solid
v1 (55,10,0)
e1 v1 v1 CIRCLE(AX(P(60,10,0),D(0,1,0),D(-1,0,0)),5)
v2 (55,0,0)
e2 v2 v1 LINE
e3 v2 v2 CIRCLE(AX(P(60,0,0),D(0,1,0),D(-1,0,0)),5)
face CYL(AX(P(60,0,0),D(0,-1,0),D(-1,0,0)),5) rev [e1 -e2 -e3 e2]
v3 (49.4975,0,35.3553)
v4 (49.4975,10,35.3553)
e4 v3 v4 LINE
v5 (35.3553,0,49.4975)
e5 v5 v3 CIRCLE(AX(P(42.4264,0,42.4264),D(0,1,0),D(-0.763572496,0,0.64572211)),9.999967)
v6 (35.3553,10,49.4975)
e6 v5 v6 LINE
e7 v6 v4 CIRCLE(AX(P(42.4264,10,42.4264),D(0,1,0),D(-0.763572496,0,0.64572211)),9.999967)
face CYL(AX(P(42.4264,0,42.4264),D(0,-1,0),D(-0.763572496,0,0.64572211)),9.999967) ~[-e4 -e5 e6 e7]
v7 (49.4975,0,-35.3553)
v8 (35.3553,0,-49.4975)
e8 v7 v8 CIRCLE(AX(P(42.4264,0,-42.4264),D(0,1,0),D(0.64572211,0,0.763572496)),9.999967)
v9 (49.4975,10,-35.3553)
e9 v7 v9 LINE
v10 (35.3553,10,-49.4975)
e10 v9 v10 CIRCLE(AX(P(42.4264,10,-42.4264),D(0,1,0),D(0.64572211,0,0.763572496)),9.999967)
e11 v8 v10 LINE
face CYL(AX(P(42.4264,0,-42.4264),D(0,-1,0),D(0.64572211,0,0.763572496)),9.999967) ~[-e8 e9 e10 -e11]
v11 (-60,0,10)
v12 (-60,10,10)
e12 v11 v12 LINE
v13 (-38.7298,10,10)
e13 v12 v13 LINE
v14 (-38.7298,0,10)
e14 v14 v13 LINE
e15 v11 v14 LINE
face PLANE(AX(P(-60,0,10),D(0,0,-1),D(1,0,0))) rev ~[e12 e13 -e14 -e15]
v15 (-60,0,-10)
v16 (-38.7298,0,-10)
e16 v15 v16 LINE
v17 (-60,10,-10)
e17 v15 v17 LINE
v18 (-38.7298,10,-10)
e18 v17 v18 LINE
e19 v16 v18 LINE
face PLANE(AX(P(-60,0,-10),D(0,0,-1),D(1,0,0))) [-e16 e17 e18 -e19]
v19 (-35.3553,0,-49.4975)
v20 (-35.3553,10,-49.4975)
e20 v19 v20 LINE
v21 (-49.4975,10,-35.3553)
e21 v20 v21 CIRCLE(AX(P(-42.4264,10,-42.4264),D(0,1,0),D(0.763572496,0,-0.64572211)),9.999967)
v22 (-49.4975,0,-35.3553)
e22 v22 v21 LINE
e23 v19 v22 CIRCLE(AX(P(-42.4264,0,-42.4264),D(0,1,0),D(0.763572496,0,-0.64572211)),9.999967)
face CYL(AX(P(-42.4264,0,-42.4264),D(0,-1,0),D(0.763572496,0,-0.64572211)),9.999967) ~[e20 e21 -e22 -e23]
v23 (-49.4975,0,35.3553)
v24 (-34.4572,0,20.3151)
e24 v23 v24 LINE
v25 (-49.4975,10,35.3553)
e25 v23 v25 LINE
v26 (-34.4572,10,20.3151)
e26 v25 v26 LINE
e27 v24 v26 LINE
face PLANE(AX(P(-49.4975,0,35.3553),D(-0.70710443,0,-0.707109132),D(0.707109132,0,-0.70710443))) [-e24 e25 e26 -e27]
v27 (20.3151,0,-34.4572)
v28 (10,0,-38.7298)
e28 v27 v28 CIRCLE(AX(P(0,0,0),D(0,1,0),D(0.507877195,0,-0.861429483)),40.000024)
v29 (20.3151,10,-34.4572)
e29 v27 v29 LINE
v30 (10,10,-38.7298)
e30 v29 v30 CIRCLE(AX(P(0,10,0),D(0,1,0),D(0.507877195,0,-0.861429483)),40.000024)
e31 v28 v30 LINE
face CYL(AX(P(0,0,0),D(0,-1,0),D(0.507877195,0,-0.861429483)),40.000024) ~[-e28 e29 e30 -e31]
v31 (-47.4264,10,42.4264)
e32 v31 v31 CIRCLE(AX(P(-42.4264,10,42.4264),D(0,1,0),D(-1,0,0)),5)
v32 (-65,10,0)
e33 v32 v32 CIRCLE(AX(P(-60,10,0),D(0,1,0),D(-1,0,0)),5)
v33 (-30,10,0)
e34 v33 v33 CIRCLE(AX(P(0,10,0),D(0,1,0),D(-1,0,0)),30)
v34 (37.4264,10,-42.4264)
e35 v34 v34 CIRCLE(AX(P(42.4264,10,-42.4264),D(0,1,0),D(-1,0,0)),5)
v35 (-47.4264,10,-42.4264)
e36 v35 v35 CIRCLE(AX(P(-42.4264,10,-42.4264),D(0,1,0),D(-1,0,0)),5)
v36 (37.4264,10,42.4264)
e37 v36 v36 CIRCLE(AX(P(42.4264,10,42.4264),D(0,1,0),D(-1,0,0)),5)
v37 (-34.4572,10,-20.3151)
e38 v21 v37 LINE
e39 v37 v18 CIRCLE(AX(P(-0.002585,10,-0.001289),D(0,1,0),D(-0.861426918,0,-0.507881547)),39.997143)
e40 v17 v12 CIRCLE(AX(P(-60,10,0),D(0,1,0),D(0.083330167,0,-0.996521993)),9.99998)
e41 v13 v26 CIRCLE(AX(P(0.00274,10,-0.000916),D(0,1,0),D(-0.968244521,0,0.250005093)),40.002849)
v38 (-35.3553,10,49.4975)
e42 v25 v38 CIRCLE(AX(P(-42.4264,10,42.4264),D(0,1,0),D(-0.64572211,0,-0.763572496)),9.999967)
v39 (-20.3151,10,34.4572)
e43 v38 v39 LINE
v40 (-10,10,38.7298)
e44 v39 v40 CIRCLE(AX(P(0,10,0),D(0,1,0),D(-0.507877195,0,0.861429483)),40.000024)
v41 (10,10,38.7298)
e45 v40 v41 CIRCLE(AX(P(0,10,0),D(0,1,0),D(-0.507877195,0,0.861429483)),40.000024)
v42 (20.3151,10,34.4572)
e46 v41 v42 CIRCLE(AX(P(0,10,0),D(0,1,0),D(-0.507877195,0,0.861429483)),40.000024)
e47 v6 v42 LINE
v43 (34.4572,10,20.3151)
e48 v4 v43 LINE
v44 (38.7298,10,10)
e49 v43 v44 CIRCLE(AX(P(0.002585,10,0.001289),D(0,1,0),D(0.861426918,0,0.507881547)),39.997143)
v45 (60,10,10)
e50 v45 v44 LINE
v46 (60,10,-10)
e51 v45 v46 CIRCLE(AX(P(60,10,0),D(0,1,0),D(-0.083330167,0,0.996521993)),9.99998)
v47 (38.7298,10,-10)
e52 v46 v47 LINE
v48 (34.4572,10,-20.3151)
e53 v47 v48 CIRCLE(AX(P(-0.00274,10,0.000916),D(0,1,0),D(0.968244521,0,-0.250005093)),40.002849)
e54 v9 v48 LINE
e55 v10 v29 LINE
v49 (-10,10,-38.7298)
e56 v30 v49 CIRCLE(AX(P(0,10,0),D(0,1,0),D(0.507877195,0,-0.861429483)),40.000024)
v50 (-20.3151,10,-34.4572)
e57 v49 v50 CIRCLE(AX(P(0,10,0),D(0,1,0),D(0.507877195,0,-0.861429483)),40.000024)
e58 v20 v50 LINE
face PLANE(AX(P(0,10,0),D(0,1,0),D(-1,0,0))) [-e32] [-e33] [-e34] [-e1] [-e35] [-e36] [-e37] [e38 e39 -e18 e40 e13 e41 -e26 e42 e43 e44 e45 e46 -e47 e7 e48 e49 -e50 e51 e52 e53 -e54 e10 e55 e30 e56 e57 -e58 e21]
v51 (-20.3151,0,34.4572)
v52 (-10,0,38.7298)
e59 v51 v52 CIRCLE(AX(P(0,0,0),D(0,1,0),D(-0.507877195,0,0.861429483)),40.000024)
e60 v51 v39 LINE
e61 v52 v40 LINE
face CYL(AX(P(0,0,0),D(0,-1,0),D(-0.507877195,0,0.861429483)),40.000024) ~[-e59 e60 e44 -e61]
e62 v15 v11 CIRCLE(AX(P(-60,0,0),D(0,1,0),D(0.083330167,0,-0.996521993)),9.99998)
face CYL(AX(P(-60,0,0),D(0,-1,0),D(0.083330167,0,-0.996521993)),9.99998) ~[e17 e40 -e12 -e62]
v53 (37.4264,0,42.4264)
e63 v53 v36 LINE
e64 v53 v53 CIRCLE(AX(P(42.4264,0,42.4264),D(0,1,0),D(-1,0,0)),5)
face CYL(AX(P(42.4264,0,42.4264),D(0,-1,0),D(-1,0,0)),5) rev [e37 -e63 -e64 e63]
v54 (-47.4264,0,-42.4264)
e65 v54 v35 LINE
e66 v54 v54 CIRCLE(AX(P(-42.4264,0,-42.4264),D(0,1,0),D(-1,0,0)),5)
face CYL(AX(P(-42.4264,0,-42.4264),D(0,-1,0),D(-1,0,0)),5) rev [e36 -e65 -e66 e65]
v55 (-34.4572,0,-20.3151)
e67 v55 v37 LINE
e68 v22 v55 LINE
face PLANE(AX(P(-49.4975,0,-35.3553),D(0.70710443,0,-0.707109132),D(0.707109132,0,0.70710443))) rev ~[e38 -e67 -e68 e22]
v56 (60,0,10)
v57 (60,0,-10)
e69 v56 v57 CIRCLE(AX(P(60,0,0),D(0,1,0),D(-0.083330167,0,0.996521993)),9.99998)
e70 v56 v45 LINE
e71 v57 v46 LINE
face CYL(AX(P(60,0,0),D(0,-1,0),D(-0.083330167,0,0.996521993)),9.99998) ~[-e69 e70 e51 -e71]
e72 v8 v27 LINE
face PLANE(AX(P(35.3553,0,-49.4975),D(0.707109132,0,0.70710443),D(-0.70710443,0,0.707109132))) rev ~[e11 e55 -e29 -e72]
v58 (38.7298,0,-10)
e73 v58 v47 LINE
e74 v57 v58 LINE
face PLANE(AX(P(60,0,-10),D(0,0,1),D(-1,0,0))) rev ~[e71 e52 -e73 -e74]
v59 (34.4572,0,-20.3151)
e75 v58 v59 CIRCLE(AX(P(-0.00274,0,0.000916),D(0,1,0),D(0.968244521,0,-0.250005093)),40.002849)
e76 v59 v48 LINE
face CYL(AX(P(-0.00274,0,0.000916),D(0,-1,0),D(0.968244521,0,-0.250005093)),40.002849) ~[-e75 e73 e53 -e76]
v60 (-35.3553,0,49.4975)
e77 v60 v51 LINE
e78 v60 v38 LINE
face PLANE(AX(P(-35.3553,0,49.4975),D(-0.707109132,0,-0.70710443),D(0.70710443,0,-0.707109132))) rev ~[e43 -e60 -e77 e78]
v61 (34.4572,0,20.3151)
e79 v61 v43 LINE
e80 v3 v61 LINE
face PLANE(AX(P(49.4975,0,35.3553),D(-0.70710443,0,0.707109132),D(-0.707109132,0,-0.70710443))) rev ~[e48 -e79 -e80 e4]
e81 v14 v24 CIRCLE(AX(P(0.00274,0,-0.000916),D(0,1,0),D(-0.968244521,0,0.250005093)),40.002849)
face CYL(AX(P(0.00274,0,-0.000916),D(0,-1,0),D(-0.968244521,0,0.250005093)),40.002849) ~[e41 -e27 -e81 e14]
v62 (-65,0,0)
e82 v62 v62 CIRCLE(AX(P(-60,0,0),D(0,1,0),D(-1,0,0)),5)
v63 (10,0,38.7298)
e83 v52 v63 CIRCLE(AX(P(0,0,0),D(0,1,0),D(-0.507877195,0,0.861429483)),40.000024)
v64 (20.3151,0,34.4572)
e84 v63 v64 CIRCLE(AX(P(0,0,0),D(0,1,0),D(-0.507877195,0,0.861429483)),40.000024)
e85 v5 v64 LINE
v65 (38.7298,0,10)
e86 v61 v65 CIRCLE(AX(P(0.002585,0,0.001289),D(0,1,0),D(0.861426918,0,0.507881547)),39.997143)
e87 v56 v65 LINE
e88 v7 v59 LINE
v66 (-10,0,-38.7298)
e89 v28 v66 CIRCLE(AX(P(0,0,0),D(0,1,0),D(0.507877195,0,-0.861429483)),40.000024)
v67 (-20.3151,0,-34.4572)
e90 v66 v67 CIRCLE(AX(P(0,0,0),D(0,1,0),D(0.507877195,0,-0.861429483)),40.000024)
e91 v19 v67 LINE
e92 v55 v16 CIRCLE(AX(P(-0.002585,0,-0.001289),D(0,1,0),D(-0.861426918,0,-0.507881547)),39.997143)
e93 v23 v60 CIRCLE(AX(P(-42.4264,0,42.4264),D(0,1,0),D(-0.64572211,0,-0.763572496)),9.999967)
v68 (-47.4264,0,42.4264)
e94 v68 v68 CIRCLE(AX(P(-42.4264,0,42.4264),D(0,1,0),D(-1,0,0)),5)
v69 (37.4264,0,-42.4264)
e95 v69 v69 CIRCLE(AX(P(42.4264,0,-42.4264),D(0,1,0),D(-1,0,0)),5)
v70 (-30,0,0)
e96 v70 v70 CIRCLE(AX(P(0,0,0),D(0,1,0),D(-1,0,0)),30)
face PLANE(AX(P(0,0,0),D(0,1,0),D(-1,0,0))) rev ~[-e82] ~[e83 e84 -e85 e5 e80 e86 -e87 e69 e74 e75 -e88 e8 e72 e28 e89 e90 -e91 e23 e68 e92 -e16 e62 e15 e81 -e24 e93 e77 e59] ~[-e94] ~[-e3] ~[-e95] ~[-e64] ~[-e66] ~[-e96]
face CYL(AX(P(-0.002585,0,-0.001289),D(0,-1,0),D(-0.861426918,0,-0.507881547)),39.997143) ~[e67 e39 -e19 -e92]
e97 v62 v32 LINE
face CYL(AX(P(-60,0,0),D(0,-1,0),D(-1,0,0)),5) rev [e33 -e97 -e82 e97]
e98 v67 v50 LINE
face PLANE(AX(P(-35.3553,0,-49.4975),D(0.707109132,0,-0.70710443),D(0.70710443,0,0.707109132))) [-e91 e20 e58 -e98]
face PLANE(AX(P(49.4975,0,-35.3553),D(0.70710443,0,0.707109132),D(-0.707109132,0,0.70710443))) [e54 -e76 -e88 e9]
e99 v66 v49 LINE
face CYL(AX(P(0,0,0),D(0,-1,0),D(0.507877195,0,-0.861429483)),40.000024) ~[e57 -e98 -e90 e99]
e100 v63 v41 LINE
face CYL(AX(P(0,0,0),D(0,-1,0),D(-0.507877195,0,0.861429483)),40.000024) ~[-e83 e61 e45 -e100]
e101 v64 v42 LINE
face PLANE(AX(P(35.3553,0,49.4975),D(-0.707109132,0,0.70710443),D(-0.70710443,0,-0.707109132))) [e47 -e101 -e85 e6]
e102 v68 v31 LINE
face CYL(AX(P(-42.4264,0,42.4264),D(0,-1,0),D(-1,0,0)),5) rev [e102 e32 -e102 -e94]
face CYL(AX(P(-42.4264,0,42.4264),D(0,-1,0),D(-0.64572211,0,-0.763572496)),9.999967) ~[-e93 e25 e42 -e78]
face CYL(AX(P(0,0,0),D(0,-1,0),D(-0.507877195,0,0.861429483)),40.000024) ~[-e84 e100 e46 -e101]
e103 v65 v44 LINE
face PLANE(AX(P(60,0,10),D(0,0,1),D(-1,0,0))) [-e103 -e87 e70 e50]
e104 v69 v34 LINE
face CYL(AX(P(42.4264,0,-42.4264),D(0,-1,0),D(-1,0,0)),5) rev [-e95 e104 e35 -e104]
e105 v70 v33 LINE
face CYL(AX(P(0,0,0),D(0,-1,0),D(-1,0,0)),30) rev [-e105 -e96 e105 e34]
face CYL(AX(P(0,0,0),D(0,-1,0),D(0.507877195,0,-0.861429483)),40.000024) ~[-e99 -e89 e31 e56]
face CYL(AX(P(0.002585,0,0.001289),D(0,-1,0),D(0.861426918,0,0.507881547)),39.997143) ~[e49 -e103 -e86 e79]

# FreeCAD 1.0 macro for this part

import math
import FreeCAD as App
import Part
import Sketcher

V = App.Vector
Q = App.Units.Quantity

doc = App.newDocument("Part")
params = doc.addObject("Spreadsheet::Sheet", "Params")
for row, (alias, value) in enumerate([
    ("sketch1_diameter", "10 mm"),
    ("sketch1_diameter2", "60 mm"),
    ("sketch1_radius", "10 mm"),
    ("sketch1_radius2", "40 mm"),
    ("pad1_length", "10 mm"),
], start=1):
    params.set(f"A{row}", alias)
    params.set(f"B{row}", "=" + value)
    params.setAlias(f"B{row}", alias)

body = doc.addObject("PartDesign::Body", "Body")

# Sketch on XZ plane
sketch1 = body.newObject("Sketcher::SketchObject", "Sketch")
sketch1.AttachmentSupport = (doc.getObject("XZ_Plane"), [""])
sketch1.MapMode = "FlatFace"
sketch1.addGeometry([
    Part.LineSegment(V(-38.7298, -10, 0), V(-60, -10, 0)),  # 0
    Part.ArcOfCircle(Part.Circle(V(-60, 0, 0), V(0, 0, 1), 9.99998), math.radians(90), math.radians(270)),  # 1
    Part.LineSegment(V(-60, 10, 0), V(-38.7298, 10, 0)),  # 2
    Part.ArcOfCircle(Part.Circle(V(0.00274, -0.000916, 0), V(0, 0, 1), 40.002849), math.radians(149.478329), math.radians(165.522186)),  # 3
    Part.LineSegment(V(-34.4572, 20.3151, 0), V(-49.4975, 35.3553, 0)),  # 4
    Part.ArcOfCircle(Part.Circle(V(-42.4264, 42.4264, 0), V(0, 0, 1), 9.999967), math.radians(45), math.radians(225)),  # 5
    Part.LineSegment(V(-35.3553, 49.4975, 0), V(-20.3151, 34.4572, 0)),  # 6
    Part.ArcOfCircle(Part.Circle(V(0, 0, 0), V(0, 0, 1), 40.000024), math.radians(59.477466), math.radians(120.522534)),  # 7
    Part.LineSegment(V(20.3151, 34.4572, 0), V(35.3553, 49.4975, 0)),  # 8
    Part.ArcOfCircle(Part.Circle(V(42.4264, 42.4264, 0), V(0, 0, 1), 9.999967), math.radians(-45), math.radians(135)),  # 9
    Part.LineSegment(V(49.4975, 35.3553, 0), V(34.4572, 20.3151, 0)),  # 10
    Part.ArcOfCircle(Part.Circle(V(0.002585, 0.001289, 0), V(0, 0, 1), 39.997143), math.radians(14.476662), math.radians(30.522823)),  # 11
    Part.LineSegment(V(38.7298, 10, 0), V(60, 10, 0)),  # 12
    Part.ArcOfCircle(Part.Circle(V(60, 0, 0), V(0, 0, 1), 9.99998), math.radians(-90), math.radians(90)),  # 13
    Part.LineSegment(V(60, -10, 0), V(38.7298, -10, 0)),  # 14
    Part.ArcOfCircle(Part.Circle(V(-0.00274, 0.000916, 0), V(0, 0, 1), 40.002849), math.radians(-30.521671), math.radians(-14.477814)),  # 15
    Part.LineSegment(V(34.4572, -20.3151, 0), V(49.4975, -35.3553, 0)),  # 16
    Part.ArcOfCircle(Part.Circle(V(42.4264, -42.4264, 0), V(0, 0, 1), 9.999967), math.radians(-135), math.radians(45)),  # 17
    Part.LineSegment(V(35.3553, -49.4975, 0), V(20.3151, -34.4572, 0)),  # 18
    Part.ArcOfCircle(Part.Circle(V(0, 0, 0), V(0, 0, 1), 40.000024), math.radians(-120.522534), math.radians(-59.477466)),  # 19
    Part.LineSegment(V(-20.3151, -34.4572, 0), V(-35.3553, -49.4975, 0)),  # 20
    Part.ArcOfCircle(Part.Circle(V(-42.4264, -42.4264, 0), V(0, 0, 1), 9.999967), math.radians(135), math.radians(315)),  # 21
    Part.LineSegment(V(-49.4975, -35.3553, 0), V(-34.4572, -20.3151, 0)),  # 22
    Part.ArcOfCircle(Part.Circle(V(-0.002585, -0.001289, 0), V(0, 0, 1), 39.997143), math.radians(-165.523338), math.radians(-149.477177)),  # 23
    Part.Circle(V(42.4264, -42.4264, 0), V(0, 0, 1), 5),  # 24
    Part.Circle(V(-42.4264, -42.4264, 0), V(0, 0, 1), 5),  # 25
    Part.Circle(V(60, 0, 0), V(0, 0, 1), 5),  # 26
    Part.Circle(V(42.4264, 42.4264, 0), V(0, 0, 1), 5),  # 27
    Part.Circle(V(0, 0, 0), V(0, 0, 1), 30),  # 28
    Part.Circle(V(-60, 0, 0), V(0, 0, 1), 5),  # 29
    Part.Circle(V(-42.4264, 42.4264, 0), V(0, 0, 1), 5),  # 30
], False)
sketch1.addConstraint([
    Sketcher.Constraint("Tangent", 0, 2, 1, 2),
    Sketcher.Constraint("Tangent", 1, 1, 2, 1),
    Sketcher.Constraint("Coincident", 2, 2, 3, 2),
    Sketcher.Constraint("Coincident", 3, 1, 4, 1),
    Sketcher.Constraint("Tangent", 4, 2, 5, 2),
    Sketcher.Constraint("Tangent", 5, 1, 6, 1),
    Sketcher.Constraint("Coincident", 6, 2, 7, 2),
    Sketcher.Constraint("Coincident", 7, 1, 8, 1),
    Sketcher.Constraint("Tangent", 8, 2, 9, 2),
    Sketcher.Constraint("Tangent", 9, 1, 10, 1),
    Sketcher.Constraint("Coincident", 10, 2, 11, 2),
    Sketcher.Constraint("Coincident", 11, 1, 12, 1),
    Sketcher.Constraint("Tangent", 12, 2, 13, 2),
    Sketcher.Constraint("Tangent", 13, 1, 14, 1),
    Sketcher.Constraint("Coincident", 14, 2, 15, 2),
    Sketcher.Constraint("Coincident", 15, 1, 16, 1),
    Sketcher.Constraint("Tangent", 16, 2, 17, 2),
    Sketcher.Constraint("Tangent", 17, 1, 18, 1),
    Sketcher.Constraint("Coincident", 18, 2, 19, 2),
    Sketcher.Constraint("Coincident", 19, 1, 20, 1),
    Sketcher.Constraint("Tangent", 20, 2, 21, 2),
    Sketcher.Constraint("Tangent", 21, 1, 22, 1),
    Sketcher.Constraint("Coincident", 22, 2, 23, 2),
    Sketcher.Constraint("Coincident", 23, 1, 0, 1),
    Sketcher.Constraint("Horizontal", 0),
    Sketcher.Constraint("Horizontal", 2),
    Sketcher.Constraint("Horizontal", 12),
    Sketcher.Constraint("Horizontal", 14),
    Sketcher.Constraint("Coincident", 7, 3, -1, 1),
    Sketcher.Constraint("Coincident", 19, 3, -1, 1),
    Sketcher.Constraint("Coincident", 28, 3, -1, 1),
    Sketcher.Constraint("Coincident", 24, 3, 17, 3),
    Sketcher.Constraint("Coincident", 25, 3, 21, 3),
    Sketcher.Constraint("Coincident", 26, 3, 13, 3),
    Sketcher.Constraint("Coincident", 27, 3, 9, 3),
    Sketcher.Constraint("Coincident", 29, 3, 1, 3),
    Sketcher.Constraint("Coincident", 30, 3, 5, 3),
    Sketcher.Constraint("Equal", 1, 5),
    Sketcher.Constraint("Equal", 5, 9),
    Sketcher.Constraint("Equal", 9, 13),
    Sketcher.Constraint("Equal", 3, 15),
    Sketcher.Constraint("Equal", 13, 17),
    Sketcher.Constraint("Equal", 7, 19),
    Sketcher.Constraint("Equal", 17, 21),
    Sketcher.Constraint("Equal", 11, 23),
    Sketcher.Constraint("Equal", 24, 25),
    Sketcher.Constraint("Equal", 25, 26),
    Sketcher.Constraint("Equal", 26, 27),
    Sketcher.Constraint("Equal", 27, 29),
    Sketcher.Constraint("Equal", 29, 30),
    Sketcher.Constraint("Symmetric", 1, 3, 13, 3, -1, 1),
    Sketcher.Constraint("Symmetric", 3, 3, 15, 3, -1, 1),
    Sketcher.Constraint("Symmetric", 5, 3, 17, 3, -1, 1),
    Sketcher.Constraint("Symmetric", 9, 3, 21, 3, -1, 1),
    Sketcher.Constraint("Symmetric", 11, 3, 23, 3, -1, 1),
    Sketcher.Constraint("Symmetric", 5, 3, 9, 3, -2),
    Sketcher.Constraint("Symmetric", 3, 1, 10, 2, -2),
    Sketcher.Constraint("Symmetric", 2, 2, 11, 1, -2),
    Sketcher.Constraint("Parallel", 4, 6),
    Sketcher.Constraint("Perpendicular", 6, 8),
    Sketcher.Constraint("Parallel", 8, 10),
    Sketcher.Constraint("Perpendicular", 10, 16),
    Sketcher.Constraint("Parallel", 16, 18),
    Sketcher.Constraint("Perpendicular", 18, 20),
    Sketcher.Constraint("Parallel", 20, 22),
    Sketcher.Constraint("Vertical", 3, 3, 11, 3),
    Sketcher.Constraint("Equal", 4, 6),
    Sketcher.Constraint("Diameter", 24, Q("10 mm")),
    Sketcher.Constraint("Diameter", 28, Q("60 mm")),
    Sketcher.Constraint("Radius", 1, Q("10 mm")),
    Sketcher.Constraint("Radius", 7, Q("40 mm")),
    Sketcher.Constraint("DistanceX", 1, 3, -1, 1, Q("60 mm")),
    Sketcher.Constraint("Radius", 3, Q("40.0028 mm")),
    Sketcher.Constraint("Radius", 11, Q("39.9971 mm")),
    Sketcher.Constraint("DistanceX", 0, 2, 0, 1, Q("21.2702 mm")),
    Sketcher.Constraint("DistanceY", 11, 3, 9, 3, Q("42.425 mm")),
])
sketch1.setExpression("Constraints[67]", "Params.sketch1_diameter")
sketch1.setExpression("Constraints[68]", "Params.sketch1_diameter2")
sketch1.setExpression("Constraints[69]", "Params.sketch1_radius")
sketch1.setExpression("Constraints[70]", "Params.sketch1_radius2")
pad1 = body.newObject("PartDesign::Pad", "Pad")
pad1.Profile = sketch1
pad1.setExpression("Length", "Params.pad1_length")
pad1.Reversed = True

doc.recompute()
